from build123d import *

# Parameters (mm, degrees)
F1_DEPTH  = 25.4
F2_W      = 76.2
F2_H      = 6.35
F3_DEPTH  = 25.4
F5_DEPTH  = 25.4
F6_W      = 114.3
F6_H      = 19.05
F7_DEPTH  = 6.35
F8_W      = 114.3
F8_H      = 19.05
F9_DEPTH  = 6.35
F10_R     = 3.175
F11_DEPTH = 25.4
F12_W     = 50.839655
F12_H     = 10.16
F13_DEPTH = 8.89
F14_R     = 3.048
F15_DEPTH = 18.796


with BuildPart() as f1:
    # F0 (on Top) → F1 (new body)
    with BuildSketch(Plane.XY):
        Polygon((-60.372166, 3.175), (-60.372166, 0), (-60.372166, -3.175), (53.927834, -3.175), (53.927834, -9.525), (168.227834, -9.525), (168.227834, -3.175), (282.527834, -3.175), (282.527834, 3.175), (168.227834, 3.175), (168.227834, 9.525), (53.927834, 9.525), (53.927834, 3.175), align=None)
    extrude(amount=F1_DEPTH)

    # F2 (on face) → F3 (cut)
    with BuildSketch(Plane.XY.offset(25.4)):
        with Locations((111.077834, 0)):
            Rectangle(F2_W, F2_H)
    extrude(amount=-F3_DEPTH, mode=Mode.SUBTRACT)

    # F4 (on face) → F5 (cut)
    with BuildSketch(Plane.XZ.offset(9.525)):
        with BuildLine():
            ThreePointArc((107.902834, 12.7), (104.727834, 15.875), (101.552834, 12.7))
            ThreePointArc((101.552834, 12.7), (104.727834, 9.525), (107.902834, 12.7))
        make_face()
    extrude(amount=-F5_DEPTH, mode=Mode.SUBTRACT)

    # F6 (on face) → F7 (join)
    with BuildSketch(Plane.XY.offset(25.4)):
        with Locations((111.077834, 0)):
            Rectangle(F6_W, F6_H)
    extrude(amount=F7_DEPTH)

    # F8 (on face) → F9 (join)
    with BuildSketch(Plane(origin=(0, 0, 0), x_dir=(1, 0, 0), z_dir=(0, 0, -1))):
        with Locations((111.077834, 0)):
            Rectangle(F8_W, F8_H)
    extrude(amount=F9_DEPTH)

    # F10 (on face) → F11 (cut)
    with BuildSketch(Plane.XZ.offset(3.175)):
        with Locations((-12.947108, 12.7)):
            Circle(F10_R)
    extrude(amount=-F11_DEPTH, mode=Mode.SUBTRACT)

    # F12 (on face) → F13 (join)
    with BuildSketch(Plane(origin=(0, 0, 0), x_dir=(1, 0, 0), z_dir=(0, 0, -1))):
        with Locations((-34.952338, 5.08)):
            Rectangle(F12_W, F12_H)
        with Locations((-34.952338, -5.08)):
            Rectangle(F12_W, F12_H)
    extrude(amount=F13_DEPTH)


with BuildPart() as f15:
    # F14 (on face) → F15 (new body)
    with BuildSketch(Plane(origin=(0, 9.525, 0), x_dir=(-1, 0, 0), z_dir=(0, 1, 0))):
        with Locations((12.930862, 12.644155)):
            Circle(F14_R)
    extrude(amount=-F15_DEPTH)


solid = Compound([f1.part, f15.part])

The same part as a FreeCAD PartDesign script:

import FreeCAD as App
import Part
import Sketcher
from FreeCAD import Vector
Q = App.Units.Quantity


def add_polygon(sketch, points):
    """Adds a closed chain of lines whose ends are joined by coincident constraints."""
    first, n = sketch.GeometryCount, len(points)
    for a, b in zip(points, points[1:] + points[:1]):
        sketch.addGeometry(Part.LineSegment(App.Vector(*a, 0), App.Vector(*b, 0)), False)
    for i in range(n):
        sketch.addConstraint(Sketcher.Constraint("Coincident", first + i, 2, first + (i + 1) % n, 1))

doc = App.newDocument("Part")
body = doc.addObject("PartDesign::Body", "Body")

# Sketch on XY plane
sketch1 = body.newObject("Sketcher::SketchObject", "Sketch")
sketch1.AttachmentSupport = (doc.getObject("XY_Plane"), [""])
sketch1.MapMode = "FlatFace"
add_polygon(sketch1, [(-60, 3), (-60, -3), (54, -3), (54, -10), (168, -10), (168, -3), (283, -3), (283, 3), (168, 3), (168, 10), (54, 10), (54, 3)])  # lines 0-11
sketch1.addConstraint([
    Sketcher.Constraint("Vertical", 0),
    Sketcher.Constraint("Horizontal", 1),
    Sketcher.Constraint("Vertical", 2),
    Sketcher.Constraint("Horizontal", 3),
    Sketcher.Constraint("Vertical", 4),
    Sketcher.Constraint("Horizontal", 5),
    Sketcher.Constraint("Vertical", 6),
    Sketcher.Constraint("Horizontal", 7),
    Sketcher.Constraint("Vertical", 8),
    Sketcher.Constraint("Horizontal", 9),
    Sketcher.Constraint("Vertical", 10),
    Sketcher.Constraint("Horizontal", 11),
    Sketcher.Constraint("Symmetric", 4, 2, 7, 2, -1),
    Sketcher.Constraint("Symmetric", 2, 2, 9, 2, -1),
    Sketcher.Constraint("Horizontal", 1, 2, 4, 2),
    Sketcher.Constraint("Horizontal", 7, 2, 10, 2),
    Sketcher.Constraint("Equal", 1, 3),
    Sketcher.Constraint("Equal", 3, 5),
    Sketcher.Constraint("Equal", 0, 2),
    Sketcher.Constraint("DistanceX", 1, 1, 1, 2, Q("4.5 in")),
    Sketcher.Constraint("DistanceY", 0, 2, 0, 1, Q("0.25 in")),
    Sketcher.Constraint("DistanceX", 0, 2, -1, 1, Q("60.372166 mm")),
])
pad1 = body.newObject("PartDesign::Pad", "Pad")
pad1.Profile = sketch1
pad1.Length = Q("1 in")

# Sketch on XY plane
sketch2 = body.newObject("Sketcher::SketchObject", "Sketch001")
sketch2.AttachmentSupport = (doc.getObject("XY_Plane"), [""])
sketch2.MapMode = "FlatFace"
sketch2.AttachmentOffset = App.Placement(Vector(0, 0, 1 * 25.4), App.Rotation())
add_polygon(sketch2, [(73, 3), (73, -3), (149, -3), (149, 3)])  # lines 0-3
sketch2.addConstraint([
    Sketcher.Constraint("Vertical", 0),
    Sketcher.Constraint("Horizontal", 1),
    Sketcher.Constraint("Vertical", 2),
    Sketcher.Constraint("Horizontal", 3),
    Sketcher.Constraint("DistanceX", 1, 1, 1, 2, Q("3 in")),
    Sketcher.Constraint("DistanceY", 0, 2, 0, 1, Q("0.25 in")),
    Sketcher.Constraint("DistanceY", 0, 2, -1, 1, Q("0.125 in")),
    Sketcher.Constraint("DistanceX", -1, 1, 0, 2, Q("72.977834 mm")),
])
pocket1 = body.newObject("PartDesign::Pocket", "Pocket")
pocket1.Profile = sketch2
pocket1.Length = Q("1 in")

# Sketch on XZ plane
sketch3 = body.newObject("Sketcher::SketchObject", "Sketch002")
sketch3.AttachmentSupport = (doc.getObject("XZ_Plane"), [""])
sketch3.MapMode = "FlatFace"
sketch3.AttachmentOffset = App.Placement(Vector(0, 0, 0.375 * 25.4), App.Rotation())
sketch3.addGeometry(Part.Circle(Vector(104.7, 12.7, 0), Vector(0, 0, 1), 3.2), False)
sketch3.addConstraint([
    Sketcher.Constraint("Diameter", 0, Q("0.25 in")),
    Sketcher.Constraint("DistanceY", -1, 1, 0, 3, Q("0.5 in")),
    Sketcher.Constraint("DistanceX", -1, 1, 0, 3, Q("104.727834 mm")),
])
pocket2 = body.newObject("PartDesign::Pocket", "Pocket001")
pocket2.Profile = sketch3
pocket2.Length = Q("1 in")

# Sketch on XY plane
sketch4 = body.newObject("Sketcher::SketchObject", "Sketch003")
sketch4.AttachmentSupport = (doc.getObject("XY_Plane"), [""])
sketch4.MapMode = "FlatFace"
sketch4.AttachmentOffset = App.Placement(Vector(0, 0, 1 * 25.4), App.Rotation())
add_polygon(sketch4, [(54, 10), (54, -10), (168, -10), (168, 10)])  # lines 0-3
sketch4.addConstraint([
    Sketcher.Constraint("Vertical", 0),
    Sketcher.Constraint("Horizontal", 1),
    Sketcher.Constraint("Vertical", 2),
    Sketcher.Constraint("Horizontal", 3),
    Sketcher.Constraint("DistanceX", 1, 1, 1, 2, Q("4.5 in")),
    Sketcher.Constraint("DistanceY", 0, 2, 0, 1, Q("0.75 in")),
    Sketcher.Constraint("DistanceY", 0, 2, -1, 1, Q("0.375 in")),
    Sketcher.Constraint("DistanceX", -1, 1, 0, 2, Q("53.927834 mm")),
])
pad2 = body.newObject("PartDesign::Pad", "Pad001")
pad2.Profile = sketch4
pad2.Length = Q("0.25 in")

# Sketch on XY plane
sketch5 = body.newObject("Sketcher::SketchObject", "Sketch004")
sketch5.AttachmentSupport = (doc.getObject("XY_Plane"), [""])
sketch5.MapMode = "FlatFace"
add_polygon(sketch5, [(54, -10), (54, 10), (168, 10), (168, -10)])  # lines 0-3
sketch5.addConstraint([
    Sketcher.Constraint("Vertical", 0),
    Sketcher.Constraint("Horizontal", 1),
    Sketcher.Constraint("Vertical", 2),
    Sketcher.Constraint("Horizontal", 3),
    Sketcher.Constraint("DistanceX", 1, 1, 1, 2, Q("4.5 in")),
    Sketcher.Constraint("DistanceY", 0, 1, 0, 2, Q("0.75 in")),
    Sketcher.Constraint("DistanceY", -1, 1, 0, 2, Q("0.375 in")),
    Sketcher.Constraint("DistanceX", -1, 1, 0, 2, Q("53.927834 mm")),
])
pad3 = body.newObject("PartDesign::Pad", "Pad002")
pad3.Profile = sketch5
pad3.Length = Q("0.25 in")
pad3.Reversed = True

# Sketch on XZ plane
sketch6 = body.newObject("Sketcher::SketchObject", "Sketch005")
sketch6.AttachmentSupport = (doc.getObject("XZ_Plane"), [""])
sketch6.MapMode = "FlatFace"
sketch6.AttachmentOffset = App.Placement(Vector(0, 0, 0.125 * 25.4), App.Rotation())
sketch6.addGeometry(Part.Circle(Vector(-12.9, 12.7, 0), Vector(0, 0, 1), 3.2), False)
sketch6.addConstraint([
    Sketcher.Constraint("Diameter", 0, Q("0.25 in")),
    Sketcher.Constraint("DistanceY", -1, 1, 0, 3, Q("0.5 in")),
    Sketcher.Constraint("DistanceX", 0, 3, -1, 1, Q("12.947108 mm")),
])
pocket3 = body.newObject("PartDesign::Pocket", "Pocket002")
pocket3.Profile = sketch6
pocket3.Length = Q("1 in")

# Sketch on XY plane
sketch7 = body.newObject("Sketcher::SketchObject", "Sketch006")
sketch7.AttachmentSupport = (doc.getObject("XY_Plane"), [""])
sketch7.MapMode = "FlatFace"
add_polygon(sketch7, [(-60, -10), (-60, 10), (-10, 10), (-10, -10)])  # lines 0-3
sketch7.addConstraint([
    Sketcher.Constraint("Vertical", 0),
    Sketcher.Constraint("Horizontal", 1),
    Sketcher.Constraint("Vertical", 2),
    Sketcher.Constraint("Horizontal", 3),
    Sketcher.Constraint("DistanceY", 0, 1, 0, 2, Q("0.8 in")),
    Sketcher.Constraint("DistanceY", -1, 1, 0, 2, Q("0.4 in")),
    Sketcher.Constraint("DistanceX", 1, 1, 1, 2, Q("50.839655 mm")),
    Sketcher.Constraint("DistanceX", 1, 2, -1, 1, Q("9.532511 mm")),
])
pad4 = body.newObject("PartDesign::Pad", "Pad003")
pad4.Profile = sketch7
pad4.Length = Q("0.35 in")
pad4.Reversed = True
body2 = doc.addObject("PartDesign::Body", "Body001")

# Sketch on XZ plane
sketch8 = body2.newObject("Sketcher::SketchObject", "Sketch007")
sketch8.AttachmentSupport = (doc.getObject("XZ_Plane001"), [""])
sketch8.MapMode = "FlatFace"
sketch8.AttachmentOffset = App.Placement(Vector(0, 0, -0.375 * 25.4), App.Rotation())
sketch8.addGeometry(Part.Circle(Vector(-12.9, 12.6, 0), Vector(0, 0, 1), 3), False)
sketch8.addConstraint([
    Sketcher.Constraint("Diameter", 0, Q("0.24 in")),
    Sketcher.Constraint("DistanceX", 0, 3, -1, 1, Q("12.930862 mm")),
    Sketcher.Constraint("DistanceY", -1, 1, 0, 3, Q("12.644155 mm")),
])
pad5 = body2.newObject("PartDesign::Pad", "Pad004")
pad5.Profile = sketch8
pad5.Length = Q("0.74 in")

doc.recompute()
